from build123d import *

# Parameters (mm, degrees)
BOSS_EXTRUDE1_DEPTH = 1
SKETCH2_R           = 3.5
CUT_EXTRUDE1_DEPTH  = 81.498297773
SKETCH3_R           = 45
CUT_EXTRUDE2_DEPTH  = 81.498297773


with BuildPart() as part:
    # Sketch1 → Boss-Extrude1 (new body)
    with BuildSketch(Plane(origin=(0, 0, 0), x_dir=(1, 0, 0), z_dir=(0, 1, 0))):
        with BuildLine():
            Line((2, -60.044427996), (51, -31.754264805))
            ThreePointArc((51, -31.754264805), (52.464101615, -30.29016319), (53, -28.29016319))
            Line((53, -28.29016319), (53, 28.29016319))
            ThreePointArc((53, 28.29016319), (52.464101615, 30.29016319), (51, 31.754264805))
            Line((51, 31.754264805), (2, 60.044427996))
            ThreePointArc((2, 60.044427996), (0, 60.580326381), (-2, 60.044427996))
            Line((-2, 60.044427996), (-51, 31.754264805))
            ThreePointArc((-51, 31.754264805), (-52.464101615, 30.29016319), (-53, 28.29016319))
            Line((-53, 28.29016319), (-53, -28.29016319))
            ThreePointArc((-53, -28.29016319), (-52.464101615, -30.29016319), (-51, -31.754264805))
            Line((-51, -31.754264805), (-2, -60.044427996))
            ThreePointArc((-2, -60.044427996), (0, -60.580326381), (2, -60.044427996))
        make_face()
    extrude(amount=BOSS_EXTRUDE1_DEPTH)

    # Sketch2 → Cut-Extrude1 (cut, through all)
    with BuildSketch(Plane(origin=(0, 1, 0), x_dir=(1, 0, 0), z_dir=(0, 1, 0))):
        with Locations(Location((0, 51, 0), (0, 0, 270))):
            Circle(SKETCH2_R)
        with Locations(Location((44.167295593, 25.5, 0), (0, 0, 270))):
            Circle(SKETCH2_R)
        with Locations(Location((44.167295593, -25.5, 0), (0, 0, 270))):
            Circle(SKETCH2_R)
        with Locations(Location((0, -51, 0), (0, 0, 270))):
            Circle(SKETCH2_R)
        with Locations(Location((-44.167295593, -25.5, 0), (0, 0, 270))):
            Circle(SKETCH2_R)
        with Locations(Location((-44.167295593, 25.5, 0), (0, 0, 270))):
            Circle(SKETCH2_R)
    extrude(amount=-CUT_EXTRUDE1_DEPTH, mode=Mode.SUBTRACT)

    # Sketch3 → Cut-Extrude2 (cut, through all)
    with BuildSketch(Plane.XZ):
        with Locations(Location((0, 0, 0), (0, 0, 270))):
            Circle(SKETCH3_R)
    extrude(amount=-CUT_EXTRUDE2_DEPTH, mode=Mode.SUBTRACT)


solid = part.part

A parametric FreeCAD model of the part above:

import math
import FreeCAD as App
import Part
import Sketcher
Q = App.Units.Quantity

doc = App.newDocument("Part")
body = doc.addObject("PartDesign::Body", "Body")

sketch1 = body.newObject("Sketcher::SketchObject", "Sketch")
sketch1.AttachmentSupport = (doc.getObject("XZ_Plane"), [""])
sketch1.MapMode = "FlatFace"
sketch1.addGeometry(Part.LineSegment(App.Vector(2, 60, 0), App.Vector(51, 31.8, 0)), False)
sketch1.addGeometry(Part.ArcOfCircle(Part.Circle(App.Vector(49, 28.3, 0), App.Vector(0, 0, 1), 4), math.radians(0), math.radians(60)), False)
sketch1.addGeometry(Part.LineSegment(App.Vector(53, 28.3, 0), App.Vector(53, -28.3, 0)), False)
sketch1.addGeometry(Part.ArcOfCircle(Part.Circle(App.Vector(49, -28.3, 0), App.Vector(0, 0, 1), 4), math.radians(-60), math.radians(0)), False)
sketch1.addGeometry(Part.LineSegment(App.Vector(51, -31.8, 0), App.Vector(2, -60, 0)), False)
sketch1.addGeometry(Part.ArcOfCircle(Part.Circle(App.Vector(0, -56.6, 0), App.Vector(0, 0, 1), 4), math.radians(-120), math.radians(-60)), False)
sketch1.addGeometry(Part.LineSegment(App.Vector(-2, -60, 0), App.Vector(-51, -31.8, 0)), False)
sketch1.addGeometry(Part.ArcOfCircle(Part.Circle(App.Vector(-49, -28.3, 0), App.Vector(0, 0, 1), 4), math.radians(180), math.radians(240)), False)
sketch1.addGeometry(Part.LineSegment(App.Vector(-53, -28.3, 0), App.Vector(-53, 28.3, 0)), False)
sketch1.addGeometry(Part.ArcOfCircle(Part.Circle(App.Vector(-49, 28.3, 0), App.Vector(0, 0, 1), 4), math.radians(120), math.radians(180)), False)
sketch1.addGeometry(Part.LineSegment(App.Vector(-51, 31.8, 0), App.Vector(-2, 60, 0)), False)
sketch1.addGeometry(Part.ArcOfCircle(Part.Circle(App.Vector(0, 56.6, 0), App.Vector(0, 0, 1), 4), math.radians(60), math.radians(120)), False)
sketch1.addConstraint(Sketcher.Constraint("Tangent", 0, 2, 1, 2))
sketch1.addConstraint(Sketcher.Constraint("Tangent", 1, 1, 2, 1))
sketch1.addConstraint(Sketcher.Constraint("Tangent", 2, 2, 3, 2))
sketch1.addConstraint(Sketcher.Constraint("Tangent", 3, 1, 4, 1))
sketch1.addConstraint(Sketcher.Constraint("Tangent", 4, 2, 5, 2))
sketch1.addConstraint(Sketcher.Constraint("Tangent", 5, 1, 6, 1))
sketch1.addConstraint(Sketcher.Constraint("Tangent", 6, 2, 7, 2))
sketch1.addConstraint(Sketcher.Constraint("Tangent", 7, 1, 8, 1))
sketch1.addConstraint(Sketcher.Constraint("Tangent", 8, 2, 9, 2))
sketch1.addConstraint(Sketcher.Constraint("Tangent", 9, 1, 10, 1))
sketch1.addConstraint(Sketcher.Constraint("Tangent", 10, 2, 11, 2))
sketch1.addConstraint(Sketcher.Constraint("Tangent", 11, 1, 0, 1))
sketch1.addConstraint(Sketcher.Constraint("Vertical", 2))
sketch1.addConstraint(Sketcher.Constraint("Vertical", 8))
sketch1.addConstraint(Sketcher.Constraint("Equal", 1, 3))
sketch1.addConstraint(Sketcher.Constraint("Equal", 3, 5))
sketch1.addConstraint(Sketcher.Constraint("Equal", 5, 7))
sketch1.addConstraint(Sketcher.Constraint("Equal", 7, 9))
sketch1.addConstraint(Sketcher.Constraint("Equal", 9, 11))
sketch1.addConstraint(Sketcher.Constraint("Symmetric", 1, 3, 7, 3, -1, 1))
sketch1.addConstraint(Sketcher.Constraint("Symmetric", 5, 3, 11, 3, -1, 1))
sketch1.addConstraint(Sketcher.Constraint("Symmetric", 4, 2, 5, 1, -2))
sketch1.addConstraint(Sketcher.Constraint("Parallel", 4, 10))
sketch1.addConstraint(Sketcher.Constraint("Radius", 1, Q("4 mm")))
sketch1.addConstraint(Sketcher.Constraint("Angle", 0, Q("-30 deg")))
sketch1.addConstraint(Sketcher.Constraint("DistanceX", -1, 1, 1, 3, Q("49 mm")))
sketch1.addConstraint(Sketcher.Constraint("DistanceY", 2, 2, 2, 1, Q("56.580326 mm")))
pad1 = body.newObject("PartDesign::Pad", "Pad")
pad1.Profile = sketch1
pad1.Length = 1
pad1.Reversed = True

sketch2 = body.newObject("Sketcher::SketchObject", "Sketch001")
sketch2.AttachmentSupport = (doc.getObject("XZ_Plane"), [""])
sketch2.MapMode = "FlatFace"
sketch2.AttachmentOffset = App.Placement(App.Vector(0, 0, -1), App.Rotation())
sketch2.addGeometry(Part.Circle(App.Vector(0, -51, 0), App.Vector(0, 0, 1), 3.5), False)
sketch2.addGeometry(Part.Circle(App.Vector(44.2, -25.5, 0), App.Vector(0, 0, 1), 3.5), False)
sketch2.addGeometry(Part.Circle(App.Vector(44.2, 25.5, 0), App.Vector(0, 0, 1), 3.5), False)
sketch2.addGeometry(Part.Circle(App.Vector(0, 51, 0), App.Vector(0, 0, 1), 3.5), False)
sketch2.addGeometry(Part.Circle(App.Vector(-44.2, 25.5, 0), App.Vector(0, 0, 1), 3.5), False)
sketch2.addGeometry(Part.Circle(App.Vector(-44.2, -25.5, 0), App.Vector(0, 0, 1), 3.5), False)
sketch2.addConstraint(Sketcher.Constraint("Equal", 0, 1))
sketch2.addConstraint(Sketcher.Constraint("Equal", 1, 2))
sketch2.addConstraint(Sketcher.Constraint("Equal", 2, 3))
sketch2.addConstraint(Sketcher.Constraint("Equal", 3, 4))
sketch2.addConstraint(Sketcher.Constraint("Equal", 4, 5))
sketch2.addConstraint(Sketcher.Constraint("Symmetric", 0, 3, 3, 3, -1, 1))
sketch2.addConstraint(Sketcher.Constraint("Symmetric", 1, 3, 4, 3, -1, 1))
sketch2.addConstraint(Sketcher.Constraint("Symmetric", 2, 3, 5, 3, -1, 1))
sketch2.addConstraint(Sketcher.Constraint("Symmetric", 2, 3, 4, 3, -2))
sketch2.addConstraint(Sketcher.Constraint("PointOnObject", 0, 3, -2))
sketch2.addConstraint(Sketcher.Constraint("Diameter", 0, Q("7 mm")))
sketch2.addConstraint(Sketcher.Constraint("DistanceY", 0, 3, -1, 1, Q("51 mm")))
sketch2.addConstraint(Sketcher.Constraint("DistanceY", 1, 3, 2, 3, Q("51 mm")))
sketch2.addConstraint(Sketcher.Constraint("DistanceX", 4, 3, 2, 3, Q("88.334591 mm")))
pocket1 = body.newObject("PartDesign::Pocket", "Pocket")
pocket1.Profile = sketch2
pocket1.Type = "ThroughAll"
pocket1.Reversed = True

sketch3 = body.newObject("Sketcher::SketchObject", "Sketch002")
sketch3.AttachmentSupport = (doc.getObject("XZ_Plane"), [""])
sketch3.MapMode = "FlatFace"
sketch3.addGeometry(Part.Circle(App.Vector(0, 0, 0), App.Vector(0, 0, 1), 45), False)
sketch3.addConstraint(Sketcher.Constraint("Coincident", 0, 3, -1, 1))
sketch3.addConstraint(Sketcher.Constraint("Diameter", 0, Q("90 mm")))
pocket2 = body.newObject("PartDesign::Pocket", "Pocket001")
pocket2.Profile = sketch3
pocket2.Type = "ThroughAll"

doc.recompute()
